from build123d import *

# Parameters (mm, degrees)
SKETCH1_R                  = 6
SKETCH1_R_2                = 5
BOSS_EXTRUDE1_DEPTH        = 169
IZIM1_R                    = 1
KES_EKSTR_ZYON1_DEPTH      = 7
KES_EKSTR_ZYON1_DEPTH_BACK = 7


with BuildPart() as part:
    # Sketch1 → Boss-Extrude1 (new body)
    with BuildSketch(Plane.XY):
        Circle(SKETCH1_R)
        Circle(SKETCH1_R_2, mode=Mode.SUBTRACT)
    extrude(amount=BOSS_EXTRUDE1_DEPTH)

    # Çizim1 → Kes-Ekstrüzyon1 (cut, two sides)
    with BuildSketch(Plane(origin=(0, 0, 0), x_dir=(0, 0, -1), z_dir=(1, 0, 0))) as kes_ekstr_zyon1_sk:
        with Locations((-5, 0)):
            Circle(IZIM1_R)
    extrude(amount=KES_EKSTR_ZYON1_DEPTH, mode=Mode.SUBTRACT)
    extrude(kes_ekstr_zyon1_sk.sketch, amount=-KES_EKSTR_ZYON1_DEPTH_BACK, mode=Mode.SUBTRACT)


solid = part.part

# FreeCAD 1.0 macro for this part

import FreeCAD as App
import Part
import Sketcher

V = App.Vector

doc = App.newDocument("Part")
body = doc.addObject("PartDesign::Body", "Body")

# Sketch on XY plane
sketch1 = body.newObject("Sketcher::SketchObject", "Sketch")
sketch1.AttachmentSupport = (doc.getObject("XY_Plane"), [""])
sketch1.MapMode = "FlatFace"
sketch1.addGeometry([
    Part.Circle(V(0, 0, 0), V(0, 0, 1), 6),
    Part.Circle(V(0, 0, 0), V(0, 0, 1), 5),
], False)
sketch1.addConstraint([
    Sketcher.Constraint("Coincident", 0, 3, -1, 1),
    Sketcher.Constraint("Coincident", 1, 3, -1, 1),
    Sketcher.Constraint("Diameter", 0, 12.0),
    Sketcher.Constraint("Diameter", 1, 10.0),
])
pad1 = body.newObject("PartDesign::Pad", "Pad")
pad1.Profile = sketch1
pad1.Length = 169

# Sketch on YZ plane
sketch2 = body.newObject("Sketcher::SketchObject", "Sketch001")
sketch2.AttachmentSupport = (doc.getObject("YZ_Plane"), [""])
sketch2.MapMode = "FlatFace"
sketch2.addGeometry(Part.Circle(V(0, 5, 0), V(0, 0, 1), 1), False)
sketch2.addConstraint([
    Sketcher.Constraint("PointOnObject", 0, 3, -2),
    Sketcher.Constraint("Diameter", 0, 2.0),
    Sketcher.Constraint("DistanceY", -1, 1, 0, 3, 5.0),
])
pocket1 = body.newObject("PartDesign::Pocket", "Pocket")
pocket1.Profile = sketch2
pocket1.Type = "ThroughAll"
pocket1.Midplane = True

doc.recompute()
